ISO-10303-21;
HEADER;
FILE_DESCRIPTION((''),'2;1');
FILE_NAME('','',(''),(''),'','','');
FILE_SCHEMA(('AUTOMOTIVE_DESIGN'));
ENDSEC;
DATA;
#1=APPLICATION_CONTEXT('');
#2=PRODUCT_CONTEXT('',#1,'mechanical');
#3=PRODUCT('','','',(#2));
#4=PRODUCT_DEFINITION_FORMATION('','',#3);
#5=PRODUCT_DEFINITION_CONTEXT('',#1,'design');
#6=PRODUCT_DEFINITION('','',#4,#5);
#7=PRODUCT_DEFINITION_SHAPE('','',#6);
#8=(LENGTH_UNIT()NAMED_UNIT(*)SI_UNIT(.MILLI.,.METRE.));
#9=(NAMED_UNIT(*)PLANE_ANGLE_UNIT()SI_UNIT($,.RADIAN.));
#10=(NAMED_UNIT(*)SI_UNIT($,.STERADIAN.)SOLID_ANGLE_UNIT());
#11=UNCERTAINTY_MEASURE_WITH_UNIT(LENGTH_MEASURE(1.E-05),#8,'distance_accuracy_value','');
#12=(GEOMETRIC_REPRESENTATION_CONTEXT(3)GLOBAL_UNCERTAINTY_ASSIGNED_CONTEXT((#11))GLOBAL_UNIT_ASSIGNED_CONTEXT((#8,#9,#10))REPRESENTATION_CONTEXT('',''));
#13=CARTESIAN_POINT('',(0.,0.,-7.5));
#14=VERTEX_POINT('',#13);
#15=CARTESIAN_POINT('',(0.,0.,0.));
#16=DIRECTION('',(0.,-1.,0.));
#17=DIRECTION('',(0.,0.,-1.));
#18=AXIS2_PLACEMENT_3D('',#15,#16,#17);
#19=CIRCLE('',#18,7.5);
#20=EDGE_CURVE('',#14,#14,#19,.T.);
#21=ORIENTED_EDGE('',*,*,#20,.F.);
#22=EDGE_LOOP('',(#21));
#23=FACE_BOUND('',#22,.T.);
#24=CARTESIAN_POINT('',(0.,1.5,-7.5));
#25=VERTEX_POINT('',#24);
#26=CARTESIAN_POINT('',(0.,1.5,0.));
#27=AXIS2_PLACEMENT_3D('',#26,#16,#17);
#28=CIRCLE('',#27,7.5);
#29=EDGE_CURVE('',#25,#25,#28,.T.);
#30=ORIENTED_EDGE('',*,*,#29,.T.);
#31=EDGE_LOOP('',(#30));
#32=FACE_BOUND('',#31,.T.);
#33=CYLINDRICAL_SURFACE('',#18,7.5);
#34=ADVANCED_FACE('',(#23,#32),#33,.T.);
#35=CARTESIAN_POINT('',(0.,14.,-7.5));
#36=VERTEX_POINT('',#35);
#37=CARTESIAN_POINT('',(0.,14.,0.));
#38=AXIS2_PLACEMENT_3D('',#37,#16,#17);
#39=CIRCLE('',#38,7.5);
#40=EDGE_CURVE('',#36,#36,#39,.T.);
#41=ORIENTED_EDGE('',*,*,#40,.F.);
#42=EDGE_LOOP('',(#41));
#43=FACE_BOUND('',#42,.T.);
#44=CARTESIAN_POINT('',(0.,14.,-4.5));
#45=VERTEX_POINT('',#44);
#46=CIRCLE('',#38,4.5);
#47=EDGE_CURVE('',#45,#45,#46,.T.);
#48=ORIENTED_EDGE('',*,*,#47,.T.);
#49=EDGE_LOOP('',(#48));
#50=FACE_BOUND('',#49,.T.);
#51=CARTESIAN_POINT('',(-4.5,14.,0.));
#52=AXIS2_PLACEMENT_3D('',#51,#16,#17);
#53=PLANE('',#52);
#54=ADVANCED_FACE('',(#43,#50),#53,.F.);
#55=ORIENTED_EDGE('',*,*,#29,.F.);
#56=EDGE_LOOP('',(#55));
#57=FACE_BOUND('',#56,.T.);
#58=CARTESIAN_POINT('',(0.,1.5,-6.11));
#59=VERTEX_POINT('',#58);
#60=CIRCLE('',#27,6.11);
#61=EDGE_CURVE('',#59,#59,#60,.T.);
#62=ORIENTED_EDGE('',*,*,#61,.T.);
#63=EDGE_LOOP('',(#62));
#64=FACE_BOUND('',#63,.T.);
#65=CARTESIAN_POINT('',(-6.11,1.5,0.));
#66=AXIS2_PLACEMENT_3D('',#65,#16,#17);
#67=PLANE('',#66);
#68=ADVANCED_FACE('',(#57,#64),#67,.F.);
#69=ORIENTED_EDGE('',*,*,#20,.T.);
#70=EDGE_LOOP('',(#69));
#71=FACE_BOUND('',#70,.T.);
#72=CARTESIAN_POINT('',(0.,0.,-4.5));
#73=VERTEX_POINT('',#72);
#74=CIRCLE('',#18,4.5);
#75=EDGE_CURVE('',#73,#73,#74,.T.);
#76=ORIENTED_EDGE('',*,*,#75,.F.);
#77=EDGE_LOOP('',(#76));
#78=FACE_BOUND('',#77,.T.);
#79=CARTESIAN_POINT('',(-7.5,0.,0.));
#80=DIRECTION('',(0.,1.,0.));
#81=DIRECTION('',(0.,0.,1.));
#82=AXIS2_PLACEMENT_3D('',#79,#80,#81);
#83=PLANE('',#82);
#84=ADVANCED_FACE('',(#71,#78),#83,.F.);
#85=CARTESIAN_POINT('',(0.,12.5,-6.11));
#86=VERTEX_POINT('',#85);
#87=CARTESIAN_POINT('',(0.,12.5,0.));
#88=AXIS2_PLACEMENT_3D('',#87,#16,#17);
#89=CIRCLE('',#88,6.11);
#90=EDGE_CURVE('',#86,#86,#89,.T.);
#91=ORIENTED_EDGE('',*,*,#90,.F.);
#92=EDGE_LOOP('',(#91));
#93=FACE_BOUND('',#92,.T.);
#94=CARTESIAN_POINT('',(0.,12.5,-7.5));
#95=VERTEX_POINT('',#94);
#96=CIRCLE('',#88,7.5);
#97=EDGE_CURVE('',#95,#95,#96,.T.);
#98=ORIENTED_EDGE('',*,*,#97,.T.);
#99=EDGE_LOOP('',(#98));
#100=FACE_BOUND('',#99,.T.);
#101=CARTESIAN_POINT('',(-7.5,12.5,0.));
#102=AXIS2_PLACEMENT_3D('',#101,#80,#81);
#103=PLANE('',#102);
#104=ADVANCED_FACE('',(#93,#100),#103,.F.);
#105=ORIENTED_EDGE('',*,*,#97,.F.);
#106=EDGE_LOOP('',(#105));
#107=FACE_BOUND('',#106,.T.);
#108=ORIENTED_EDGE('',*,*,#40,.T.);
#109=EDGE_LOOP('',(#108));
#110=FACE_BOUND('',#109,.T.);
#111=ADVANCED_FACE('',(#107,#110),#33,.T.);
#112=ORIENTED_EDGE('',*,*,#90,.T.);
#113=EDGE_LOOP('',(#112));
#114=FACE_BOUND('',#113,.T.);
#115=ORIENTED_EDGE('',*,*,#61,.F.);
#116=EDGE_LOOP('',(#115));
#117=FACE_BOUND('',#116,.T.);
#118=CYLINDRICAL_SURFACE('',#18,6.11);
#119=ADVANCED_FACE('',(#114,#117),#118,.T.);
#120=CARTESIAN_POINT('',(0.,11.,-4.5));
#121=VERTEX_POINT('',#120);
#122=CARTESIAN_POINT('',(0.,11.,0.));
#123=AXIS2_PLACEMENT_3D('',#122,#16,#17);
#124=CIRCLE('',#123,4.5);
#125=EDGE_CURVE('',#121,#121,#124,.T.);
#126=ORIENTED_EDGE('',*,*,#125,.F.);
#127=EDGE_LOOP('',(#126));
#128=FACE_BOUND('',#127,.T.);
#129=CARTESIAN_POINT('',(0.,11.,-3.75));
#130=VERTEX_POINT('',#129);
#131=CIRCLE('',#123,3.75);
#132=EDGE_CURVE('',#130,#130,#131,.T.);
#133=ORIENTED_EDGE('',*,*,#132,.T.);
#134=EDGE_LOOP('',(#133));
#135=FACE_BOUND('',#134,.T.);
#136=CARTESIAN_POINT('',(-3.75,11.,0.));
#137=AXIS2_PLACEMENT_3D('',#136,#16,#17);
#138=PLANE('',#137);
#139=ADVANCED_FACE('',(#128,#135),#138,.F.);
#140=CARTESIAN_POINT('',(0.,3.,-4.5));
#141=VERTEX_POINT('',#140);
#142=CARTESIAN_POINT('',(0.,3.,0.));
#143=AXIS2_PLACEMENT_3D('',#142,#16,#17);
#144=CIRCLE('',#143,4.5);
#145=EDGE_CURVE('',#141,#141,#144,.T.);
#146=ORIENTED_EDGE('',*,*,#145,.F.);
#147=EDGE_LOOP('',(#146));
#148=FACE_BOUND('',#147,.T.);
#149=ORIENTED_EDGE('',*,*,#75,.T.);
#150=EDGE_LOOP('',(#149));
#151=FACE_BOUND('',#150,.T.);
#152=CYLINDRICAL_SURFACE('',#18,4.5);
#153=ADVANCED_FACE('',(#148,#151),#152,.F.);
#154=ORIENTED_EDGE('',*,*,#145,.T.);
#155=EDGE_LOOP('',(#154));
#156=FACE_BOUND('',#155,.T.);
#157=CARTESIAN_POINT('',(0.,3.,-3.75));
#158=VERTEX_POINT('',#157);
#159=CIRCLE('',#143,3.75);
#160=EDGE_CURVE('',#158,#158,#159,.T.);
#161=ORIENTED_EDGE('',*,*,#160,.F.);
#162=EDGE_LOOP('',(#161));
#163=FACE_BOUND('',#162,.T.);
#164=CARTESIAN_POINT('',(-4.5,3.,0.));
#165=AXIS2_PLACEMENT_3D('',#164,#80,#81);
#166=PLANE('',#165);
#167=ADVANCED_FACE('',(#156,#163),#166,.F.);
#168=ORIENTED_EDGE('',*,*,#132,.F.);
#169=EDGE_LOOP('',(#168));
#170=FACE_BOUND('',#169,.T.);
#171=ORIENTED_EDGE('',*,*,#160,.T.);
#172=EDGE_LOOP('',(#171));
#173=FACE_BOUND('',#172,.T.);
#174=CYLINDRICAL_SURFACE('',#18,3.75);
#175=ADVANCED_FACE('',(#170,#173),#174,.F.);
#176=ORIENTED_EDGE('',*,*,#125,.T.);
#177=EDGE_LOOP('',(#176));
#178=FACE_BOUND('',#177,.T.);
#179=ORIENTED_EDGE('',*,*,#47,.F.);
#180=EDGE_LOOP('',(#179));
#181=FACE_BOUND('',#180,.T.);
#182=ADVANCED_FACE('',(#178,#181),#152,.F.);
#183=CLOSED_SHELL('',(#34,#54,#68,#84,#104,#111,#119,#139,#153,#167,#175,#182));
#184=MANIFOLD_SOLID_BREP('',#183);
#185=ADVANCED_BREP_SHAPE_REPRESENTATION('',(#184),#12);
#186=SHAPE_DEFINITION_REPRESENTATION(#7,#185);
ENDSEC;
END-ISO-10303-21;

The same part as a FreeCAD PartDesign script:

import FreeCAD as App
import Part
import Sketcher

V = App.Vector
Q = App.Units.Quantity

doc = App.newDocument("Part")
params = doc.addObject("Spreadsheet::Sheet", "Params")
for row, (alias, value) in enumerate([
    ("sketch1_width", "3 mm"),
    ("sketch1_height", "8 mm"),
    ("sketch1_height2", "11 mm"),
    ("sketch1_width2", "0.75 mm"),
    ("sketch1_width3", "1.39 mm"),
    ("revolution_angle", "360 deg"),
], start=1):
    params.set(f"A{row}", alias)
    params.set(f"B{row}", "=" + value)
    params.setAlias(f"B{row}", alias)

body = doc.addObject("PartDesign::Body", "Body")

sketch1 = body.newObject("Sketcher::SketchObject", "Sketch")
sketch1.AttachmentSupport = (doc.getObject("XY_Plane"), [""])
sketch1.MapMode = "FlatFace"
sketch1.addGeometry(Part.LineSegment(V(-4.5, 0, 0), V(-4.5, 3, 0)), False)
sketch1.addGeometry(Part.LineSegment(V(-4.5, 3, 0), V(-3.8, 3, 0)), False)
sketch1.addGeometry(Part.LineSegment(V(-3.8, 3, 0), V(-3.8, 11, 0)), False)
sketch1.addGeometry(Part.LineSegment(V(-3.8, 11, 0), V(-4.5, 11, 0)), False)
sketch1.addGeometry(Part.LineSegment(V(-4.5, 11, 0), V(-4.5, 14, 0)), False)
sketch1.addGeometry(Part.LineSegment(V(-4.5, 14, 0), V(-7.5, 14, 0)), False)
sketch1.addGeometry(Part.LineSegment(V(-7.5, 14, 0), V(-7.5, 12.5, 0)), False)
sketch1.addGeometry(Part.LineSegment(V(-7.5, 12.5, 0), V(-6.1, 12.5, 0)), False)
sketch1.addGeometry(Part.LineSegment(V(-6.1, 12.5, 0), V(-6.1, 1.5, 0)), False)
sketch1.addGeometry(Part.LineSegment(V(-6.1, 1.5, 0), V(-7.5, 1.5, 0)), False)
sketch1.addGeometry(Part.LineSegment(V(-7.5, 1.5, 0), V(-7.5, 0, 0)), False)
sketch1.addGeometry(Part.LineSegment(V(-7.5, 0, 0), V(-4.5, 0, 0)), False)
sketch1.addConstraint(Sketcher.Constraint("Coincident", 0, 2, 1, 1))
sketch1.addConstraint(Sketcher.Constraint("Coincident", 1, 2, 2, 1))
sketch1.addConstraint(Sketcher.Constraint("Coincident", 2, 2, 3, 1))
sketch1.addConstraint(Sketcher.Constraint("Coincident", 3, 2, 4, 1))
sketch1.addConstraint(Sketcher.Constraint("Coincident", 4, 2, 5, 1))
sketch1.addConstraint(Sketcher.Constraint("Coincident", 5, 2, 6, 1))
sketch1.addConstraint(Sketcher.Constraint("Coincident", 6, 2, 7, 1))
sketch1.addConstraint(Sketcher.Constraint("Coincident", 7, 2, 8, 1))
sketch1.addConstraint(Sketcher.Constraint("Coincident", 8, 2, 9, 1))
sketch1.addConstraint(Sketcher.Constraint("Coincident", 9, 2, 10, 1))
sketch1.addConstraint(Sketcher.Constraint("Coincident", 10, 2, 11, 1))
sketch1.addConstraint(Sketcher.Constraint("Coincident", 11, 2, 0, 1))
sketch1.addConstraint(Sketcher.Constraint("Vertical", 0))
sketch1.addConstraint(Sketcher.Constraint("Horizontal", 1))
sketch1.addConstraint(Sketcher.Constraint("Vertical", 2))
sketch1.addConstraint(Sketcher.Constraint("Horizontal", 3))
sketch1.addConstraint(Sketcher.Constraint("Vertical", 4))
sketch1.addConstraint(Sketcher.Constraint("Horizontal", 5))
sketch1.addConstraint(Sketcher.Constraint("Vertical", 6))
sketch1.addConstraint(Sketcher.Constraint("Horizontal", 7))
sketch1.addConstraint(Sketcher.Constraint("Vertical", 8))
sketch1.addConstraint(Sketcher.Constraint("Horizontal", 9))
sketch1.addConstraint(Sketcher.Constraint("Vertical", 10))
sketch1.addConstraint(Sketcher.Constraint("Horizontal", 11))
sketch1.addConstraint(Sketcher.Constraint("PointOnObject", 10, 2, -1))
sketch1.addConstraint(Sketcher.Constraint("Vertical", 0, 2, 3, 2))
sketch1.addConstraint(Sketcher.Constraint("Vertical", 6, 2, 9, 2))
sketch1.addConstraint(Sketcher.Constraint("Equal", 11, 0))
sketch1.addConstraint(Sketcher.Constraint("Equal", 0, 4))
sketch1.addConstraint(Sketcher.Constraint("Equal", 6, 10))
sketch1.addConstraint(Sketcher.Constraint("DistanceX", 5, 2, 5, 1, Q("3 mm")))
sketch1.addConstraint(Sketcher.Constraint("DistanceY", 2, 1, 2, 2, Q("8 mm")))
sketch1.addConstraint(Sketcher.Constraint("DistanceY", 8, 2, 8, 1, Q("11 mm")))
sketch1.addConstraint(Sketcher.Constraint("DistanceX", 1, 1, 1, 2, Q("0.75 mm")))
sketch1.addConstraint(Sketcher.Constraint("DistanceX", 7, 1, 7, 2, Q("1.39 mm")))
sketch1.addConstraint(Sketcher.Constraint("DistanceX", 0, 2, -1, 1, Q("4.5 mm")))
sketch1.setExpression("Constraints[30]", "Params.sketch1_width")
sketch1.setExpression("Constraints[31]", "Params.sketch1_height")
sketch1.setExpression("Constraints[32]", "Params.sketch1_height2")
sketch1.setExpression("Constraints[33]", "Params.sketch1_width2")
sketch1.setExpression("Constraints[34]", "Params.sketch1_width3")
revolution = body.newObject("PartDesign::Revolution", "Revolution")
revolution.Profile = sketch1
revolution.ReferenceAxis = (sketch1, ["V_Axis"])
revolution.setExpression("Angle", "Params.revolution_angle")

doc.recompute()
